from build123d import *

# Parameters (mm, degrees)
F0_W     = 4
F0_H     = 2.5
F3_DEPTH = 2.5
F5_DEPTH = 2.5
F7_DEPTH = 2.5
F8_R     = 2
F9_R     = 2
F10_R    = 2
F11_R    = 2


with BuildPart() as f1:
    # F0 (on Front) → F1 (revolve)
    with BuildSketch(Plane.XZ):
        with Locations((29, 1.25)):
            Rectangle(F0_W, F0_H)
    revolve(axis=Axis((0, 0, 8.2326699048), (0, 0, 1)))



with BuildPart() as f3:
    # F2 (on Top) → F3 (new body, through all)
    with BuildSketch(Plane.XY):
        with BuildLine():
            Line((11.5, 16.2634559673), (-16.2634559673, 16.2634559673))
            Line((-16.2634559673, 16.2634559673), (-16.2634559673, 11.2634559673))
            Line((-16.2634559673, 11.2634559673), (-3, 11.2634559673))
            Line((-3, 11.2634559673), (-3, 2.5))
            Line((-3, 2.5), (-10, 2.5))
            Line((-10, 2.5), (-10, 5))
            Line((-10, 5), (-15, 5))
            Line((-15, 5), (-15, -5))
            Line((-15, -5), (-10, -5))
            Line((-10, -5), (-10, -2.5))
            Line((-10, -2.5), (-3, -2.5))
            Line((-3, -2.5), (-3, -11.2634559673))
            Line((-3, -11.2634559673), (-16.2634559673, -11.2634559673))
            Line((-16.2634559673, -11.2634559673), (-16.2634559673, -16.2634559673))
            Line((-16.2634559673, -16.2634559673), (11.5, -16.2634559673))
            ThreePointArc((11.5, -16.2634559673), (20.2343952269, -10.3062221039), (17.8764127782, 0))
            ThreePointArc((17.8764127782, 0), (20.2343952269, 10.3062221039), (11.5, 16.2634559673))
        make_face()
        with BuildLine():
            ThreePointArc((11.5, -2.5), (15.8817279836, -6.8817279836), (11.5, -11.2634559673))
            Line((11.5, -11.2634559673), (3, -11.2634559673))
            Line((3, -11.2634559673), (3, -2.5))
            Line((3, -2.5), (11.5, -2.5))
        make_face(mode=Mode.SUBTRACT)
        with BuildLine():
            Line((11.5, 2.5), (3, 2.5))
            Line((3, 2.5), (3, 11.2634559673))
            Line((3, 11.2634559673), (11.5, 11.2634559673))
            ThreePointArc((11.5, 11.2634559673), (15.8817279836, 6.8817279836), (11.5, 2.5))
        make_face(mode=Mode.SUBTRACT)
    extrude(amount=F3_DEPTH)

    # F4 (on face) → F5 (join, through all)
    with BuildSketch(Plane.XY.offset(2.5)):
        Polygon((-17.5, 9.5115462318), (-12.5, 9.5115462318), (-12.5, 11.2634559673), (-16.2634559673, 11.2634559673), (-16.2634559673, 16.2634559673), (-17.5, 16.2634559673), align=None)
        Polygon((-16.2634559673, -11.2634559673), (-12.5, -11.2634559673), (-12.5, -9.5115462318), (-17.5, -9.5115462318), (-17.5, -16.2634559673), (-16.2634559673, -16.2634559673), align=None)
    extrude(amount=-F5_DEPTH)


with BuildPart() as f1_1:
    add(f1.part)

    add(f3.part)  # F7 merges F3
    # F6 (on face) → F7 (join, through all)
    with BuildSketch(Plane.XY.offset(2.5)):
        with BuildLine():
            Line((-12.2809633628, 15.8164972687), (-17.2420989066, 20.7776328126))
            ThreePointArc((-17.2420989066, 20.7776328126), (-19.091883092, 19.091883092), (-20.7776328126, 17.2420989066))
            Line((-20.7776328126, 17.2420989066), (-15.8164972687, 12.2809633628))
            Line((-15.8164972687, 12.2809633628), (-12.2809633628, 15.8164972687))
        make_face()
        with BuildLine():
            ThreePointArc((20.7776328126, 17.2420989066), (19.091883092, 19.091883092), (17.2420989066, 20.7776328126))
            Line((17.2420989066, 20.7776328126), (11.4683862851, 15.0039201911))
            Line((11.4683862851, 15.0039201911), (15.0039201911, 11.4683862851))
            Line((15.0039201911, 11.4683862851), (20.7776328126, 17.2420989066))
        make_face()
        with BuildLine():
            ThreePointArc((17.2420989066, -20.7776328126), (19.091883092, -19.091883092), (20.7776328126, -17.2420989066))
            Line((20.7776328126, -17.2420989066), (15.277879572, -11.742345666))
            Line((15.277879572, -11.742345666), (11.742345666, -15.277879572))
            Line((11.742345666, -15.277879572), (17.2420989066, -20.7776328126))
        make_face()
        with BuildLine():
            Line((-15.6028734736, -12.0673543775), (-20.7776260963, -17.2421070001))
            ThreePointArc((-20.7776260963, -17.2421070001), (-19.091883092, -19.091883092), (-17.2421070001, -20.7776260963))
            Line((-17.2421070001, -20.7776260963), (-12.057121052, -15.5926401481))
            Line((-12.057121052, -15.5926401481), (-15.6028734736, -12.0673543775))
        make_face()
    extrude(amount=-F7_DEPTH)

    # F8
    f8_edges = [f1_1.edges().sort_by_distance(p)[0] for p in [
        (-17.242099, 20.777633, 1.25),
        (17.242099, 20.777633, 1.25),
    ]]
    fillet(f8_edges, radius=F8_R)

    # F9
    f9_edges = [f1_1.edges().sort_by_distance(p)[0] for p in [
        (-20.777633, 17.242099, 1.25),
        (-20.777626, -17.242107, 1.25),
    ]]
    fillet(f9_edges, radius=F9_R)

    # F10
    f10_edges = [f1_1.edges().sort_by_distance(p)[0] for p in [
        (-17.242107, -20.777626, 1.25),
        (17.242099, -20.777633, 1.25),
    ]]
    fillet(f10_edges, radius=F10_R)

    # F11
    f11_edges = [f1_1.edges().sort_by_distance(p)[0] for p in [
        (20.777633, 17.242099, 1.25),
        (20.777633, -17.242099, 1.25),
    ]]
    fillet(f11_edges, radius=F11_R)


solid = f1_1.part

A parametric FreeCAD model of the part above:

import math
import FreeCAD as App
import Part
import Sketcher
from FreeCAD import Vector
Q = App.Units.Quantity


def edges_at(feature, points):
    """Names of the edges that pass closest to the given points."""
    edges = feature.Shape.Edges
    near = lambda p: min(range(len(edges)), key=lambda i: edges[i].distToShape(Part.Vertex(*p))[0])
    return sorted({f"Edge{near(p) + 1}" for p in points})

doc = App.newDocument("Part")
body = doc.addObject("PartDesign::Body", "Body")

# Sketch on XZ plane
sketch1 = body.newObject("Sketcher::SketchObject", "Sketch")
sketch1.AttachmentSupport = (doc.getObject("XZ_Plane"), [""])
sketch1.MapMode = "FlatFace"
sketch1.addGeometry([
    Part.LineSegment(Vector(27, 2.5, 0), Vector(27, 0, 0)),
    Part.LineSegment(Vector(27, 0, 0), Vector(31, 0, 0)),
    Part.LineSegment(Vector(31, 0, 0), Vector(31, 2.5, 0)),
    Part.LineSegment(Vector(31, 2.5, 0), Vector(27, 2.5, 0)),
], False)
sketch1.addConstraint([
    Sketcher.Constraint("Coincident", 0, 2, 1, 1),
    Sketcher.Constraint("Coincident", 1, 2, 2, 1),
    Sketcher.Constraint("Coincident", 2, 2, 3, 1),
    Sketcher.Constraint("Coincident", 3, 2, 0, 1),
    Sketcher.Constraint("Vertical", 0),
    Sketcher.Constraint("Horizontal", 1),
    Sketcher.Constraint("Vertical", 2),
    Sketcher.Constraint("Horizontal", 3),
    Sketcher.Constraint("PointOnObject", 0, 2, -1),
    Sketcher.Constraint("DistanceX", 1, 1, 1, 2, Q("4 mm")),
    Sketcher.Constraint("DistanceY", 0, 2, 0, 1, Q("2.5 mm")),
    Sketcher.Constraint("DistanceX", -1, 1, 0, 2, Q("27 mm")),
])
revolution = body.newObject("PartDesign::Revolution", "Revolution")
revolution.Profile = sketch1
revolution.ReferenceAxis = (sketch1, ["V_Axis"])
revolution.Angle = 360
body2 = doc.addObject("PartDesign::Body", "Body001")

# Sketch on XY plane
sketch2 = body2.newObject("Sketcher::SketchObject", "Sketch001")
sketch2.AttachmentSupport = (doc.getObject("XY_Plane001"), [""])
sketch2.MapMode = "FlatFace"
sketch2.addGeometry([
    Part.LineSegment(Vector(11.5, 16.263456, 0), Vector(-16.263456, 16.263456, 0)),  # 0
    Part.LineSegment(Vector(-16.263456, 16.263456, 0), Vector(-16.263456, 11.263456, 0)),  # 1
    Part.LineSegment(Vector(-16.263456, 11.263456, 0), Vector(-3, 11.263456, 0)),  # 2
    Part.LineSegment(Vector(-3, 11.263456, 0), Vector(-3, 2.5, 0)),  # 3
    Part.LineSegment(Vector(-3, 2.5, 0), Vector(-10, 2.5, 0)),  # 4
    Part.LineSegment(Vector(-10, 2.5, 0), Vector(-10, 5, 0)),  # 5
    Part.LineSegment(Vector(-10, 5, 0), Vector(-15, 5, 0)),  # 6
    Part.LineSegment(Vector(-15, 5, 0), Vector(-15, -5, 0)),  # 7
    Part.LineSegment(Vector(-15, -5, 0), Vector(-10, -5, 0)),  # 8
    Part.LineSegment(Vector(-10, -5, 0), Vector(-10, -2.5, 0)),  # 9
    Part.LineSegment(Vector(-10, -2.5, 0), Vector(-3, -2.5, 0)),  # 10
    Part.LineSegment(Vector(-3, -2.5, 0), Vector(-3, -11.263456, 0)),  # 11
    Part.LineSegment(Vector(-3, -11.263456, 0), Vector(-16.263456, -11.263456, 0)),  # 12
    Part.LineSegment(Vector(-16.263456, -11.263456, 0), Vector(-16.263456, -16.263456, 0)),  # 13
    Part.LineSegment(Vector(-16.263456, -16.263456, 0), Vector(11.5, -16.263456, 0)),  # 14
    Part.ArcOfCircle(Part.Circle(Vector(11.5, -6.881728, 0), Vector(0, 0, 1), 9.381728), math.radians(-90), math.radians(47.182691)),  # 15
    Part.ArcOfCircle(Part.Circle(Vector(11.5, 6.881728, 0), Vector(0, 0, 1), 9.381728), math.radians(-47.182691), math.radians(90)),  # 16
    Part.LineSegment(Vector(3, -2.5, 0), Vector(11.5, -2.5, 0)),  # 17
    Part.ArcOfCircle(Part.Circle(Vector(11.5, -6.881728, 0), Vector(0, 0, 1), 4.381728), math.radians(-90), math.radians(90)),  # 18
    Part.LineSegment(Vector(11.5, -11.263456, 0), Vector(3, -11.263456, 0)),  # 19
    Part.LineSegment(Vector(3, -11.263456, 0), Vector(3, -2.5, 0)),  # 20
    Part.ArcOfCircle(Part.Circle(Vector(11.5, 6.881728, 0), Vector(0, 0, 1), 4.381728), math.radians(-90), math.radians(90)),  # 21
    Part.LineSegment(Vector(11.5, 2.5, 0), Vector(3, 2.5, 0)),  # 22
    Part.LineSegment(Vector(3, 2.5, 0), Vector(3, 11.263456, 0)),  # 23
    Part.LineSegment(Vector(3, 11.263456, 0), Vector(11.5, 11.263456, 0)),  # 24
], False)
sketch2.addConstraint([
    Sketcher.Constraint("Coincident", 0, 2, 1, 1),
    Sketcher.Constraint("Coincident", 1, 2, 2, 1),
    Sketcher.Constraint("Coincident", 2, 2, 3, 1),
    Sketcher.Constraint("Coincident", 3, 2, 4, 1),
    Sketcher.Constraint("Coincident", 4, 2, 5, 1),
    Sketcher.Constraint("Coincident", 5, 2, 6, 1),
    Sketcher.Constraint("Coincident", 6, 2, 7, 1),
    Sketcher.Constraint("Coincident", 7, 2, 8, 1),
    Sketcher.Constraint("Coincident", 8, 2, 9, 1),
    Sketcher.Constraint("Coincident", 9, 2, 10, 1),
    Sketcher.Constraint("Coincident", 10, 2, 11, 1),
    Sketcher.Constraint("Coincident", 11, 2, 12, 1),
    Sketcher.Constraint("Coincident", 12, 2, 13, 1),
    Sketcher.Constraint("Coincident", 13, 2, 14, 1),
    Sketcher.Constraint("Tangent", 14, 2, 15, 1),
    Sketcher.Constraint("Coincident", 15, 2, 16, 1),
    Sketcher.Constraint("Tangent", 16, 2, 0, 1),
    Sketcher.Constraint("Tangent", 17, 2, 18, 2),
    Sketcher.Constraint("Tangent", 18, 1, 19, 1),
    Sketcher.Constraint("Coincident", 19, 2, 20, 1),
    Sketcher.Constraint("Coincident", 20, 2, 17, 1),
    Sketcher.Constraint("Tangent", 21, 1, 22, 1),
    Sketcher.Constraint("Coincident", 22, 2, 23, 1),
    Sketcher.Constraint("Coincident", 23, 2, 24, 1),
    Sketcher.Constraint("Tangent", 24, 2, 21, 2),
    Sketcher.Constraint("Horizontal", 0),
    Sketcher.Constraint("Vertical", 1),
    Sketcher.Constraint("Horizontal", 2),
    Sketcher.Constraint("Vertical", 3),
    Sketcher.Constraint("Horizontal", 4),
    Sketcher.Constraint("Vertical", 5),
    Sketcher.Constraint("Horizontal", 6),
    Sketcher.Constraint("Vertical", 7),
    Sketcher.Constraint("Horizontal", 8),
    Sketcher.Constraint("Vertical", 9),
    Sketcher.Constraint("Horizontal", 10),
    Sketcher.Constraint("Vertical", 11),
    Sketcher.Constraint("Horizontal", 12),
    Sketcher.Constraint("Vertical", 13),
    Sketcher.Constraint("Horizontal", 14),
    Sketcher.Constraint("Horizontal", 17),
    Sketcher.Constraint("Horizontal", 19),
    Sketcher.Constraint("Vertical", 20),
    Sketcher.Constraint("Horizontal", 22),
    Sketcher.Constraint("Vertical", 23),
    Sketcher.Constraint("Horizontal", 24),
    Sketcher.Constraint("Coincident", 18, 3, 15, 3),
    Sketcher.Constraint("Coincident", 21, 3, 16, 3),
    Sketcher.Constraint("Equal", 15, 16),
    Sketcher.Constraint("Equal", 18, 21),
    Sketcher.Constraint("Symmetric", 2, 2, 19, 2, -1, 1),
    Sketcher.Constraint("Symmetric", 10, 2, 22, 2, -1, 1),
    Sketcher.Constraint("Symmetric", 11, 2, 19, 2, -2),
    Sketcher.Constraint("Symmetric", 15, 3, 16, 3, -1),
    Sketcher.Constraint("Symmetric", 5, 2, 8, 2, -1),
    Sketcher.Constraint("Horizontal", 4, 2, 21, 1),
    Sketcher.Constraint("Vertical", 1, 2, 12, 2),
    Sketcher.Constraint("Equal", 8, 1),
    Sketcher.Constraint("DistanceX", 4, 2, 4, 1, Q("7 mm")),
    Sketcher.Constraint("DistanceX", 6, 2, 6, 1, Q("5 mm")),
    Sketcher.Constraint("DistanceY", 7, 2, 7, 1, Q("10 mm")),
    Sketcher.Constraint("DistanceX", 17, 1, 17, 2, Q("8.5 mm")),
    Sketcher.Constraint("DistanceY", 5, 1, 5, 2, Q("2.5 mm")),
    Sketcher.Constraint("DistanceX", 2, 2, -1, 1, Q("3 mm")),
    Sketcher.Constraint("Radius", 15, Q("9.381728 mm")),
    Sketcher.Constraint("DistanceX", 0, 2, 0, 1, Q("27.763456 mm")),
])
pad1 = body2.newObject("PartDesign::Pad", "Pad")
pad1.Profile = sketch2
pad1.Length = 2.5

# Sketch on XY plane
sketch3 = body2.newObject("Sketcher::SketchObject", "Sketch002")
sketch3.AttachmentSupport = (doc.getObject("XY_Plane001"), [""])
sketch3.MapMode = "FlatFace"
sketch3.AttachmentOffset = App.Placement(Vector(0, 0, 2.5), App.Rotation())
sketch3.addGeometry([
    Part.LineSegment(Vector(-17.5, 9.511546, 0), Vector(-12.5, 9.511546, 0)),  # 0
    Part.LineSegment(Vector(-12.5, 9.511546, 0), Vector(-12.5, 11.263456, 0)),  # 1
    Part.LineSegment(Vector(-12.5, 11.263456, 0), Vector(-16.263456, 11.263456, 0)),  # 2
    Part.LineSegment(Vector(-16.263456, 11.263456, 0), Vector(-16.263456, 16.263456, 0)),  # 3
    Part.LineSegment(Vector(-16.263456, 16.263456, 0), Vector(-17.5, 16.263456, 0)),  # 4
    Part.LineSegment(Vector(-17.5, 16.263456, 0), Vector(-17.5, 9.511546, 0)),  # 5
    Part.LineSegment(Vector(-16.263456, -11.263456, 0), Vector(-12.5, -11.263456, 0)),  # 6
    Part.LineSegment(Vector(-12.5, -11.263456, 0), Vector(-12.5, -9.511546, 0)),  # 7
    Part.LineSegment(Vector(-12.5, -9.511546, 0), Vector(-17.5, -9.511546, 0)),  # 8
    Part.LineSegment(Vector(-17.5, -9.511546, 0), Vector(-17.5, -16.263456, 0)),  # 9
    Part.LineSegment(Vector(-17.5, -16.263456, 0), Vector(-16.263456, -16.263456, 0)),  # 10
    Part.LineSegment(Vector(-16.263456, -16.263456, 0), Vector(-16.263456, -11.263456, 0)),  # 11
], False)
sketch3.addConstraint([
    Sketcher.Constraint("Coincident", 0, 2, 1, 1),
    Sketcher.Constraint("Coincident", 1, 2, 2, 1),
    Sketcher.Constraint("Coincident", 2, 2, 3, 1),
    Sketcher.Constraint("Coincident", 3, 2, 4, 1),
    Sketcher.Constraint("Coincident", 4, 2, 5, 1),
    Sketcher.Constraint("Coincident", 5, 2, 0, 1),
    Sketcher.Constraint("Coincident", 6, 2, 7, 1),
    Sketcher.Constraint("Coincident", 7, 2, 8, 1),
    Sketcher.Constraint("Coincident", 8, 2, 9, 1),
    Sketcher.Constraint("Coincident", 9, 2, 10, 1),
    Sketcher.Constraint("Coincident", 10, 2, 11, 1),
    Sketcher.Constraint("Coincident", 11, 2, 6, 1),
    Sketcher.Constraint("Horizontal", 0),
    Sketcher.Constraint("Vertical", 1),
    Sketcher.Constraint("Horizontal", 2),
    Sketcher.Constraint("Vertical", 3),
    Sketcher.Constraint("Horizontal", 4),
    Sketcher.Constraint("Vertical", 5),
    Sketcher.Constraint("Horizontal", 6),
    Sketcher.Constraint("Vertical", 7),
    Sketcher.Constraint("Horizontal", 8),
    Sketcher.Constraint("Vertical", 9),
    Sketcher.Constraint("Horizontal", 10),
    Sketcher.Constraint("Vertical", 11),
    Sketcher.Constraint("Symmetric", 1, 2, 6, 2, -1),
    Sketcher.Constraint("Symmetric", 5, 2, 8, 2, -1),
    Sketcher.Constraint("Symmetric", 3, 2, 10, 2, -1),
    Sketcher.Constraint("Equal", 8, 3),
    Sketcher.Constraint("DistanceX", 0, 1, 0, 2, Q("5 mm")),
    Sketcher.Constraint("DistanceX", 0, 2, -1, 1, Q("12.5 mm")),
    Sketcher.Constraint("DistanceY", 1, 1, 1, 2, Q("1.75191 mm")),
    Sketcher.Constraint("DistanceX", 2, 2, 2, 1, Q("3.763456 mm")),
    Sketcher.Constraint("DistanceY", 6, 2, 1, 2, Q("22.526912 mm")),
])
pad2 = body2.newObject("PartDesign::Pad", "Pad001")
pad2.Profile = sketch3
pad2.Length = 2.5
pad2.Reversed = True
body.AllowCompound = True
doc.recompute()

boolean = body.newObject("PartDesign::Boolean", "Boolean")
boolean.Type = "Fuse"
boolean.addObjects([body2])

# Sketch on XY plane
sketch4 = body.newObject("Sketcher::SketchObject", "Sketch003")
sketch4.AttachmentSupport = (doc.getObject("XY_Plane"), [""])
sketch4.MapMode = "FlatFace"
sketch4.AttachmentOffset = App.Placement(Vector(0, 0, 2.5), App.Rotation())
sketch4.addGeometry([
    Part.LineSegment(Vector(-12.280963, 15.816497, 0), Vector(-17.242099, 20.777633, 0)),  # 0
    Part.ArcOfCircle(Part.Circle(Vector(0, 0, 0), Vector(0, 0, 1), 27), math.radians(129.687225), math.radians(140.312775)),  # 1
    Part.LineSegment(Vector(-20.777633, 17.242099, 0), Vector(-15.816497, 12.280963, 0)),  # 2
    Part.LineSegment(Vector(-15.816497, 12.280963, 0), Vector(-12.280963, 15.816497, 0)),  # 3
    Part.ArcOfCircle(Part.Circle(Vector(0, 0, 0), Vector(0, 0, 1), 27), math.radians(39.687225), math.radians(50.312775)),  # 4
    Part.LineSegment(Vector(17.242099, 20.777633, 0), Vector(11.468386, 15.00392, 0)),  # 5
    Part.LineSegment(Vector(11.468386, 15.00392, 0), Vector(15.00392, 11.468386, 0)),  # 6
    Part.LineSegment(Vector(15.00392, 11.468386, 0), Vector(20.777633, 17.242099, 0)),  # 7
    Part.ArcOfCircle(Part.Circle(Vector(0, 0, 0), Vector(0, 0, 1), 27), math.radians(-50.312775), math.radians(-39.687225)),  # 8
    Part.LineSegment(Vector(20.777633, -17.242099, 0), Vector(15.27788, -11.742346, 0)),  # 9
    Part.LineSegment(Vector(15.27788, -11.742346, 0), Vector(11.742346, -15.27788, 0)),  # 10
    Part.LineSegment(Vector(11.742346, -15.27788, 0), Vector(17.242099, -20.777633, 0)),  # 11
    Part.LineSegment(Vector(-15.602873, -12.067354, 0), Vector(-20.777626, -17.242107, 0)),  # 12
    Part.ArcOfCircle(Part.Circle(Vector(0, 0, 0), Vector(0, 0, 1), 27), math.radians(-140.312752), math.radians(-129.687248)),  # 13
    Part.LineSegment(Vector(-17.242107, -20.777626, 0), Vector(-12.057121, -15.59264, 0)),  # 14
    Part.LineSegment(Vector(-12.057121, -15.59264, 0), Vector(-15.602873, -12.067354, 0)),  # 15
], False)
sketch4.addConstraint([
    Sketcher.Constraint("Coincident", 0, 2, 1, 1),
    Sketcher.Constraint("Coincident", 1, 2, 2, 1),
    Sketcher.Constraint("Coincident", 2, 2, 3, 1),
    Sketcher.Constraint("Coincident", 3, 2, 0, 1),
    Sketcher.Constraint("Coincident", 4, 2, 5, 1),
    Sketcher.Constraint("Coincident", 5, 2, 6, 1),
    Sketcher.Constraint("Coincident", 6, 2, 7, 1),
    Sketcher.Constraint("Coincident", 7, 2, 4, 1),
    Sketcher.Constraint("Coincident", 8, 2, 9, 1),
    Sketcher.Constraint("Coincident", 9, 2, 10, 1),
    Sketcher.Constraint("Coincident", 10, 2, 11, 1),
    Sketcher.Constraint("Coincident", 11, 2, 8, 1),
    Sketcher.Constraint("Coincident", 12, 2, 13, 1),
    Sketcher.Constraint("Coincident", 13, 2, 14, 1),
    Sketcher.Constraint("Coincident", 14, 2, 15, 1),
    Sketcher.Constraint("Coincident", 15, 2, 12, 1),
    Sketcher.Constraint("Coincident", 1, 3, -1, 1),
    Sketcher.Constraint("Coincident", 4, 3, -1, 1),
    Sketcher.Constraint("Coincident", 8, 3, -1, 1),
    Sketcher.Constraint("Coincident", 13, 3, -1, 1),
    Sketcher.Constraint("Equal", 1, 4),
    Sketcher.Constraint("Equal", 4, 8),
    Sketcher.Constraint("Equal", 8, 13),
    Sketcher.Constraint("Parallel", 0, 2),
    Sketcher.Constraint("Perpendicular", 2, 3),
    Sketcher.Constraint("Parallel", 3, 5),
    Sketcher.Constraint("Perpendicular", 5, 6),
    Sketcher.Constraint("Perpendicular", 6, 7),
    Sketcher.Constraint("Perpendicular", 7, 9),
    Sketcher.Constraint("Perpendicular", 9, 10),
    Sketcher.Constraint("Perpendicular", 10, 11),
    Sketcher.Constraint("Perpendicular", 11, 12),
    Sketcher.Constraint("Parallel", 12, 14),
    Sketcher.Constraint("Horizontal", 0, 2, 4, 2),
    Sketcher.Constraint("Horizontal", 1, 2, 7, 2),
    Sketcher.Constraint("Vertical", 7, 2, 8, 2),
    Sketcher.Constraint("Vertical", 4, 2, 11, 2),
    Sketcher.Constraint("Equal", 0, 2),
    Sketcher.Constraint("Equal", 5, 7),
    Sketcher.Constraint("Equal", 10, 15),
    Sketcher.Constraint("Radius", 1, Q("27 mm")),
    Sketcher.Constraint("Distance", 3, Q("5 mm")),
    Sketcher.Constraint("DistanceX", 0, 2, 2, 2, Q("1.425602 mm")),
    Sketcher.Constraint("DistanceY", -1, 1, 5, 2, Q("15.00392 mm")),
    Sketcher.Constraint("DistanceX", -1, 1, 9, 2, Q("15.27788 mm")),
    Sketcher.Constraint("DistanceX", 14, 2, -1, 1, Q("12.057121 mm")),
    Sketcher.Constraint("DistanceY", 14, 2, -1, 1, Q("15.59264 mm")),
    Sketcher.Constraint("DistanceY", 13, 2, 15, 2, Q("8.710272 mm")),
])
pad3 = body.newObject("PartDesign::Pad", "Pad002")
pad3.Profile = sketch4
pad3.Type = "UpToLast"
pad3.Reversed = True
doc.recompute()

fillet = body.newObject("PartDesign::Fillet", "Fillet")
fillet.Base = (pad3, edges_at(pad3, [(-17.242, 20.778, 1.25), (17.242, 20.778, 1.25)]))
fillet.Radius = 2
doc.recompute()

fillet2 = body.newObject("PartDesign::Fillet", "Fillet001")
fillet2.Base = (fillet, edges_at(fillet, [(-20.778, 17.242, 1.25), (-20.778, -17.242, 1.25)]))
fillet2.Radius = 2
doc.recompute()

fillet3 = body.newObject("PartDesign::Fillet", "Fillet002")
fillet3.Base = (fillet2, edges_at(fillet2, [(-17.242, -20.778, 1.25), (17.242, -20.778, 1.25)]))
fillet3.Radius = 2
doc.recompute()

fillet4 = body.newObject("PartDesign::Fillet", "Fillet003")
fillet4.Base = (fillet3, edges_at(fillet3, [(20.778, 17.242, 1.25), (20.778, -17.242, 1.25)]))
fillet4.Radius = 2

doc.recompute()
